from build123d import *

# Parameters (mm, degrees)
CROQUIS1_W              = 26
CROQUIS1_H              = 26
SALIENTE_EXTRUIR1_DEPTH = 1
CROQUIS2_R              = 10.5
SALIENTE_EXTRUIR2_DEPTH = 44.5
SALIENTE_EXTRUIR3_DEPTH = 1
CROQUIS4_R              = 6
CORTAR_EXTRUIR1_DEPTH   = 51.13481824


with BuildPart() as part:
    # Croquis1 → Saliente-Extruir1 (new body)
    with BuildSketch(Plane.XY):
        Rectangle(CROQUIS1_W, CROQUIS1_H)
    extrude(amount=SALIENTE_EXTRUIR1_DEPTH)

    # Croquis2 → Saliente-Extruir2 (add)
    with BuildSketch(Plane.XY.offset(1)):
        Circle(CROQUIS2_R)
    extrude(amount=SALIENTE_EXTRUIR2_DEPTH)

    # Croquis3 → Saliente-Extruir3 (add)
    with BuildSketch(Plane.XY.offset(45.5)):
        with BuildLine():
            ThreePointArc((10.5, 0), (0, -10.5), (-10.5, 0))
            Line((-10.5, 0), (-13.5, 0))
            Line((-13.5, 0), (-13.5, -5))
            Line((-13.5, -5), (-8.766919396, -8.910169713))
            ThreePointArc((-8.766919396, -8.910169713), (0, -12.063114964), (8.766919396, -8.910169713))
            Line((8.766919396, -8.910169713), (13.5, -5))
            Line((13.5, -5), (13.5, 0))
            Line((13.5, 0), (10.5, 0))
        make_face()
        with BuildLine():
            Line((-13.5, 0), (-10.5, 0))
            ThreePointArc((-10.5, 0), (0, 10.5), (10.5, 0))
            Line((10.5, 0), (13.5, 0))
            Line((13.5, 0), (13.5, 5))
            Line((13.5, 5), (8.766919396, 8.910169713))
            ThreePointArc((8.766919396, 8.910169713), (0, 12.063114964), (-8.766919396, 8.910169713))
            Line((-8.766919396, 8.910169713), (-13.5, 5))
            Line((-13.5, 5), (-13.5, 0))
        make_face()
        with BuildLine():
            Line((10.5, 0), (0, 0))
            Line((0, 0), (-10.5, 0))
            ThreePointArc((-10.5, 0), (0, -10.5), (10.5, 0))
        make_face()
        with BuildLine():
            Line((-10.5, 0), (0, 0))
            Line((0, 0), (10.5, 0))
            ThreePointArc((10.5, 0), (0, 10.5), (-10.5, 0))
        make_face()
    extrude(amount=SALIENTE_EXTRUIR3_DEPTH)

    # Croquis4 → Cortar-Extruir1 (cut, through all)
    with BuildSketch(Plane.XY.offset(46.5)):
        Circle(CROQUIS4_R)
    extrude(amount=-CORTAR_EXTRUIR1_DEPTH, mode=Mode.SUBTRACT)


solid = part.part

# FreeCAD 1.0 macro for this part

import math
import FreeCAD as App
import Part
import Sketcher
Q = App.Units.Quantity

doc = App.newDocument("Part")
params = doc.addObject("Spreadsheet::Sheet", "Params")
for row, (alias, value) in enumerate([
    ("sketch1_width", "26 mm"),
    ("pad1_length", "1 mm"),
    ("sketch2_diameter", "21 mm"),
    ("pad2_length", "44.5 mm"),
    ("sketch3_height", "10 mm"),
    ("pad3_length", "1 mm"),
    ("sketch4_diameter", "12 mm"),
], start=1):
    params.set(f"A{row}", alias)
    params.set(f"B{row}", "=" + value)
    params.setAlias(f"B{row}", alias)

body = doc.addObject("PartDesign::Body", "Body")

# Sketch on XY plane
sketch1 = body.newObject("Sketcher::SketchObject", "Sketch")
sketch1.AttachmentSupport = (doc.getObject("XY_Plane"), [""])
sketch1.MapMode = "FlatFace"
sketch1.addGeometry(Part.LineSegment(App.Vector(-13, 13, 0), App.Vector(-13, -13, 0)), False)
sketch1.addGeometry(Part.LineSegment(App.Vector(-13, -13, 0), App.Vector(13, -13, 0)), False)
sketch1.addGeometry(Part.LineSegment(App.Vector(13, -13, 0), App.Vector(13, 13, 0)), False)
sketch1.addGeometry(Part.LineSegment(App.Vector(13, 13, 0), App.Vector(-13, 13, 0)), False)
sketch1.addConstraint(Sketcher.Constraint("Coincident", 0, 2, 1, 1))
sketch1.addConstraint(Sketcher.Constraint("Coincident", 1, 2, 2, 1))
sketch1.addConstraint(Sketcher.Constraint("Coincident", 2, 2, 3, 1))
sketch1.addConstraint(Sketcher.Constraint("Coincident", 3, 2, 0, 1))
sketch1.addConstraint(Sketcher.Constraint("Vertical", 0))
sketch1.addConstraint(Sketcher.Constraint("Horizontal", 1))
sketch1.addConstraint(Sketcher.Constraint("Vertical", 2))
sketch1.addConstraint(Sketcher.Constraint("Horizontal", 3))
sketch1.addConstraint(Sketcher.Constraint("Symmetric", 0, 2, 2, 2, -1, 1))
sketch1.addConstraint(Sketcher.Constraint("Equal", 3, 0))
sketch1.addConstraint(Sketcher.Constraint("DistanceX", 1, 1, 1, 2, Q("26 mm")))
sketch1.setExpression("Constraints[10]", "Params.sketch1_width")
pad1 = body.newObject("PartDesign::Pad", "Pad")
pad1.Profile = sketch1
pad1.setExpression("Length", "Params.pad1_length")

# Sketch on XY plane
sketch2 = body.newObject("Sketcher::SketchObject", "Sketch001")
sketch2.AttachmentSupport = (doc.getObject("XY_Plane"), [""])
sketch2.MapMode = "FlatFace"
sketch2.AttachmentOffset = App.Placement(App.Vector(0, 0, 1), App.Rotation())
sketch2.addGeometry(Part.Circle(App.Vector(0, 0, 0), App.Vector(0, 0, 1), 10), False)
sketch2.addConstraint(Sketcher.Constraint("Coincident", 0, 3, -1, 1))
sketch2.addConstraint(Sketcher.Constraint("Diameter", 0, Q("21 mm")))
sketch2.setExpression("Constraints[1]", "Params.sketch2_diameter")
pad2 = body.newObject("PartDesign::Pad", "Pad001")
pad2.Profile = sketch2
pad2.setExpression("Length", "Params.pad2_length")

# Sketch on XY plane
sketch3 = body.newObject("Sketcher::SketchObject", "Sketch002")
sketch3.AttachmentSupport = (doc.getObject("XY_Plane"), [""])
sketch3.MapMode = "FlatFace"
sketch3.AttachmentOffset = App.Placement(App.Vector(0, 0, 45.5), App.Rotation())
sketch3.addGeometry(Part.LineSegment(App.Vector(-14, -5, 0), App.Vector(-9, -9, 0)), False)
sketch3.addGeometry(Part.ArcOfCircle(Part.Circle(App.Vector(0, 2, 0), App.Vector(0, 0, 1), 14), math.radians(-130), math.radians(-50)), False)
sketch3.addGeometry(Part.LineSegment(App.Vector(9, -9, 0), App.Vector(14, -5, 0)), False)
sketch3.addGeometry(Part.LineSegment(App.Vector(14, -5, 0), App.Vector(14, 5, 0)), False)
sketch3.addGeometry(Part.LineSegment(App.Vector(14, 5, 0), App.Vector(9, 9, 0)), False)
sketch3.addGeometry(Part.ArcOfCircle(Part.Circle(App.Vector(0, -2, 0), App.Vector(0, 0, 1), 14), math.radians(50), math.radians(130)), False)
sketch3.addGeometry(Part.LineSegment(App.Vector(-9, 9, 0), App.Vector(-14, 5, 0)), False)
sketch3.addGeometry(Part.LineSegment(App.Vector(-14, 5, 0), App.Vector(-14, -5, 0)), False)
sketch3.addConstraint(Sketcher.Constraint("Tangent", 0, 2, 1, 1))
sketch3.addConstraint(Sketcher.Constraint("Tangent", 1, 2, 2, 1))
sketch3.addConstraint(Sketcher.Constraint("Coincident", 2, 2, 3, 1))
sketch3.addConstraint(Sketcher.Constraint("Coincident", 3, 2, 4, 1))
sketch3.addConstraint(Sketcher.Constraint("Tangent", 4, 2, 5, 1))
sketch3.addConstraint(Sketcher.Constraint("Tangent", 5, 2, 6, 1))
sketch3.addConstraint(Sketcher.Constraint("Coincident", 6, 2, 7, 1))
sketch3.addConstraint(Sketcher.Constraint("Coincident", 7, 2, 0, 1))
sketch3.addConstraint(Sketcher.Constraint("Vertical", 3))
sketch3.addConstraint(Sketcher.Constraint("Vertical", 7))
sketch3.addConstraint(Sketcher.Constraint("Equal", 1, 5))
sketch3.addConstraint(Sketcher.Constraint("Symmetric", 1, 3, 5, 3, -1, 1))
sketch3.addConstraint(Sketcher.Constraint("Symmetric", 2, 2, 6, 2, -1, 1))
sketch3.addConstraint(Sketcher.Constraint("Symmetric", 0, 2, 1, 2, -2))
sketch3.addConstraint(Sketcher.Constraint("Parallel", 0, 4))
sketch3.addConstraint(Sketcher.Constraint("DistanceY", 3, 1, 3, 2, Q("10 mm")))
sketch3.addConstraint(Sketcher.Constraint("DistanceX", -1, 1, 2, 2, Q("13.5 mm")))
sketch3.addConstraint(Sketcher.Constraint("Radius", 1, Q("13.764898 mm")))
sketch3.addConstraint(Sketcher.Constraint("Distance", 0, Q("6.139339 mm")))
sketch3.setExpression("Constraints[15]", "Params.sketch3_height")
pad3 = body.newObject("PartDesign::Pad", "Pad002")
pad3.Profile = sketch3
pad3.setExpression("Length", "Params.pad3_length")

# Sketch on XY plane
sketch4 = body.newObject("Sketcher::SketchObject", "Sketch003")
sketch4.AttachmentSupport = (doc.getObject("XY_Plane"), [""])
sketch4.MapMode = "FlatFace"
sketch4.AttachmentOffset = App.Placement(App.Vector(0, 0, 46.5), App.Rotation())
sketch4.addGeometry(Part.Circle(App.Vector(0, 0, 0), App.Vector(0, 0, 1), 6), False)
sketch4.addConstraint(Sketcher.Constraint("Coincident", 0, 3, -1, 1))
sketch4.addConstraint(Sketcher.Constraint("Diameter", 0, Q("12 mm")))
sketch4.setExpression("Constraints[1]", "Params.sketch4_diameter")
pocket1 = body.newObject("PartDesign::Pocket", "Pocket")
pocket1.Profile = sketch4
pocket1.Type = "ThroughAll"

doc.recompute()
